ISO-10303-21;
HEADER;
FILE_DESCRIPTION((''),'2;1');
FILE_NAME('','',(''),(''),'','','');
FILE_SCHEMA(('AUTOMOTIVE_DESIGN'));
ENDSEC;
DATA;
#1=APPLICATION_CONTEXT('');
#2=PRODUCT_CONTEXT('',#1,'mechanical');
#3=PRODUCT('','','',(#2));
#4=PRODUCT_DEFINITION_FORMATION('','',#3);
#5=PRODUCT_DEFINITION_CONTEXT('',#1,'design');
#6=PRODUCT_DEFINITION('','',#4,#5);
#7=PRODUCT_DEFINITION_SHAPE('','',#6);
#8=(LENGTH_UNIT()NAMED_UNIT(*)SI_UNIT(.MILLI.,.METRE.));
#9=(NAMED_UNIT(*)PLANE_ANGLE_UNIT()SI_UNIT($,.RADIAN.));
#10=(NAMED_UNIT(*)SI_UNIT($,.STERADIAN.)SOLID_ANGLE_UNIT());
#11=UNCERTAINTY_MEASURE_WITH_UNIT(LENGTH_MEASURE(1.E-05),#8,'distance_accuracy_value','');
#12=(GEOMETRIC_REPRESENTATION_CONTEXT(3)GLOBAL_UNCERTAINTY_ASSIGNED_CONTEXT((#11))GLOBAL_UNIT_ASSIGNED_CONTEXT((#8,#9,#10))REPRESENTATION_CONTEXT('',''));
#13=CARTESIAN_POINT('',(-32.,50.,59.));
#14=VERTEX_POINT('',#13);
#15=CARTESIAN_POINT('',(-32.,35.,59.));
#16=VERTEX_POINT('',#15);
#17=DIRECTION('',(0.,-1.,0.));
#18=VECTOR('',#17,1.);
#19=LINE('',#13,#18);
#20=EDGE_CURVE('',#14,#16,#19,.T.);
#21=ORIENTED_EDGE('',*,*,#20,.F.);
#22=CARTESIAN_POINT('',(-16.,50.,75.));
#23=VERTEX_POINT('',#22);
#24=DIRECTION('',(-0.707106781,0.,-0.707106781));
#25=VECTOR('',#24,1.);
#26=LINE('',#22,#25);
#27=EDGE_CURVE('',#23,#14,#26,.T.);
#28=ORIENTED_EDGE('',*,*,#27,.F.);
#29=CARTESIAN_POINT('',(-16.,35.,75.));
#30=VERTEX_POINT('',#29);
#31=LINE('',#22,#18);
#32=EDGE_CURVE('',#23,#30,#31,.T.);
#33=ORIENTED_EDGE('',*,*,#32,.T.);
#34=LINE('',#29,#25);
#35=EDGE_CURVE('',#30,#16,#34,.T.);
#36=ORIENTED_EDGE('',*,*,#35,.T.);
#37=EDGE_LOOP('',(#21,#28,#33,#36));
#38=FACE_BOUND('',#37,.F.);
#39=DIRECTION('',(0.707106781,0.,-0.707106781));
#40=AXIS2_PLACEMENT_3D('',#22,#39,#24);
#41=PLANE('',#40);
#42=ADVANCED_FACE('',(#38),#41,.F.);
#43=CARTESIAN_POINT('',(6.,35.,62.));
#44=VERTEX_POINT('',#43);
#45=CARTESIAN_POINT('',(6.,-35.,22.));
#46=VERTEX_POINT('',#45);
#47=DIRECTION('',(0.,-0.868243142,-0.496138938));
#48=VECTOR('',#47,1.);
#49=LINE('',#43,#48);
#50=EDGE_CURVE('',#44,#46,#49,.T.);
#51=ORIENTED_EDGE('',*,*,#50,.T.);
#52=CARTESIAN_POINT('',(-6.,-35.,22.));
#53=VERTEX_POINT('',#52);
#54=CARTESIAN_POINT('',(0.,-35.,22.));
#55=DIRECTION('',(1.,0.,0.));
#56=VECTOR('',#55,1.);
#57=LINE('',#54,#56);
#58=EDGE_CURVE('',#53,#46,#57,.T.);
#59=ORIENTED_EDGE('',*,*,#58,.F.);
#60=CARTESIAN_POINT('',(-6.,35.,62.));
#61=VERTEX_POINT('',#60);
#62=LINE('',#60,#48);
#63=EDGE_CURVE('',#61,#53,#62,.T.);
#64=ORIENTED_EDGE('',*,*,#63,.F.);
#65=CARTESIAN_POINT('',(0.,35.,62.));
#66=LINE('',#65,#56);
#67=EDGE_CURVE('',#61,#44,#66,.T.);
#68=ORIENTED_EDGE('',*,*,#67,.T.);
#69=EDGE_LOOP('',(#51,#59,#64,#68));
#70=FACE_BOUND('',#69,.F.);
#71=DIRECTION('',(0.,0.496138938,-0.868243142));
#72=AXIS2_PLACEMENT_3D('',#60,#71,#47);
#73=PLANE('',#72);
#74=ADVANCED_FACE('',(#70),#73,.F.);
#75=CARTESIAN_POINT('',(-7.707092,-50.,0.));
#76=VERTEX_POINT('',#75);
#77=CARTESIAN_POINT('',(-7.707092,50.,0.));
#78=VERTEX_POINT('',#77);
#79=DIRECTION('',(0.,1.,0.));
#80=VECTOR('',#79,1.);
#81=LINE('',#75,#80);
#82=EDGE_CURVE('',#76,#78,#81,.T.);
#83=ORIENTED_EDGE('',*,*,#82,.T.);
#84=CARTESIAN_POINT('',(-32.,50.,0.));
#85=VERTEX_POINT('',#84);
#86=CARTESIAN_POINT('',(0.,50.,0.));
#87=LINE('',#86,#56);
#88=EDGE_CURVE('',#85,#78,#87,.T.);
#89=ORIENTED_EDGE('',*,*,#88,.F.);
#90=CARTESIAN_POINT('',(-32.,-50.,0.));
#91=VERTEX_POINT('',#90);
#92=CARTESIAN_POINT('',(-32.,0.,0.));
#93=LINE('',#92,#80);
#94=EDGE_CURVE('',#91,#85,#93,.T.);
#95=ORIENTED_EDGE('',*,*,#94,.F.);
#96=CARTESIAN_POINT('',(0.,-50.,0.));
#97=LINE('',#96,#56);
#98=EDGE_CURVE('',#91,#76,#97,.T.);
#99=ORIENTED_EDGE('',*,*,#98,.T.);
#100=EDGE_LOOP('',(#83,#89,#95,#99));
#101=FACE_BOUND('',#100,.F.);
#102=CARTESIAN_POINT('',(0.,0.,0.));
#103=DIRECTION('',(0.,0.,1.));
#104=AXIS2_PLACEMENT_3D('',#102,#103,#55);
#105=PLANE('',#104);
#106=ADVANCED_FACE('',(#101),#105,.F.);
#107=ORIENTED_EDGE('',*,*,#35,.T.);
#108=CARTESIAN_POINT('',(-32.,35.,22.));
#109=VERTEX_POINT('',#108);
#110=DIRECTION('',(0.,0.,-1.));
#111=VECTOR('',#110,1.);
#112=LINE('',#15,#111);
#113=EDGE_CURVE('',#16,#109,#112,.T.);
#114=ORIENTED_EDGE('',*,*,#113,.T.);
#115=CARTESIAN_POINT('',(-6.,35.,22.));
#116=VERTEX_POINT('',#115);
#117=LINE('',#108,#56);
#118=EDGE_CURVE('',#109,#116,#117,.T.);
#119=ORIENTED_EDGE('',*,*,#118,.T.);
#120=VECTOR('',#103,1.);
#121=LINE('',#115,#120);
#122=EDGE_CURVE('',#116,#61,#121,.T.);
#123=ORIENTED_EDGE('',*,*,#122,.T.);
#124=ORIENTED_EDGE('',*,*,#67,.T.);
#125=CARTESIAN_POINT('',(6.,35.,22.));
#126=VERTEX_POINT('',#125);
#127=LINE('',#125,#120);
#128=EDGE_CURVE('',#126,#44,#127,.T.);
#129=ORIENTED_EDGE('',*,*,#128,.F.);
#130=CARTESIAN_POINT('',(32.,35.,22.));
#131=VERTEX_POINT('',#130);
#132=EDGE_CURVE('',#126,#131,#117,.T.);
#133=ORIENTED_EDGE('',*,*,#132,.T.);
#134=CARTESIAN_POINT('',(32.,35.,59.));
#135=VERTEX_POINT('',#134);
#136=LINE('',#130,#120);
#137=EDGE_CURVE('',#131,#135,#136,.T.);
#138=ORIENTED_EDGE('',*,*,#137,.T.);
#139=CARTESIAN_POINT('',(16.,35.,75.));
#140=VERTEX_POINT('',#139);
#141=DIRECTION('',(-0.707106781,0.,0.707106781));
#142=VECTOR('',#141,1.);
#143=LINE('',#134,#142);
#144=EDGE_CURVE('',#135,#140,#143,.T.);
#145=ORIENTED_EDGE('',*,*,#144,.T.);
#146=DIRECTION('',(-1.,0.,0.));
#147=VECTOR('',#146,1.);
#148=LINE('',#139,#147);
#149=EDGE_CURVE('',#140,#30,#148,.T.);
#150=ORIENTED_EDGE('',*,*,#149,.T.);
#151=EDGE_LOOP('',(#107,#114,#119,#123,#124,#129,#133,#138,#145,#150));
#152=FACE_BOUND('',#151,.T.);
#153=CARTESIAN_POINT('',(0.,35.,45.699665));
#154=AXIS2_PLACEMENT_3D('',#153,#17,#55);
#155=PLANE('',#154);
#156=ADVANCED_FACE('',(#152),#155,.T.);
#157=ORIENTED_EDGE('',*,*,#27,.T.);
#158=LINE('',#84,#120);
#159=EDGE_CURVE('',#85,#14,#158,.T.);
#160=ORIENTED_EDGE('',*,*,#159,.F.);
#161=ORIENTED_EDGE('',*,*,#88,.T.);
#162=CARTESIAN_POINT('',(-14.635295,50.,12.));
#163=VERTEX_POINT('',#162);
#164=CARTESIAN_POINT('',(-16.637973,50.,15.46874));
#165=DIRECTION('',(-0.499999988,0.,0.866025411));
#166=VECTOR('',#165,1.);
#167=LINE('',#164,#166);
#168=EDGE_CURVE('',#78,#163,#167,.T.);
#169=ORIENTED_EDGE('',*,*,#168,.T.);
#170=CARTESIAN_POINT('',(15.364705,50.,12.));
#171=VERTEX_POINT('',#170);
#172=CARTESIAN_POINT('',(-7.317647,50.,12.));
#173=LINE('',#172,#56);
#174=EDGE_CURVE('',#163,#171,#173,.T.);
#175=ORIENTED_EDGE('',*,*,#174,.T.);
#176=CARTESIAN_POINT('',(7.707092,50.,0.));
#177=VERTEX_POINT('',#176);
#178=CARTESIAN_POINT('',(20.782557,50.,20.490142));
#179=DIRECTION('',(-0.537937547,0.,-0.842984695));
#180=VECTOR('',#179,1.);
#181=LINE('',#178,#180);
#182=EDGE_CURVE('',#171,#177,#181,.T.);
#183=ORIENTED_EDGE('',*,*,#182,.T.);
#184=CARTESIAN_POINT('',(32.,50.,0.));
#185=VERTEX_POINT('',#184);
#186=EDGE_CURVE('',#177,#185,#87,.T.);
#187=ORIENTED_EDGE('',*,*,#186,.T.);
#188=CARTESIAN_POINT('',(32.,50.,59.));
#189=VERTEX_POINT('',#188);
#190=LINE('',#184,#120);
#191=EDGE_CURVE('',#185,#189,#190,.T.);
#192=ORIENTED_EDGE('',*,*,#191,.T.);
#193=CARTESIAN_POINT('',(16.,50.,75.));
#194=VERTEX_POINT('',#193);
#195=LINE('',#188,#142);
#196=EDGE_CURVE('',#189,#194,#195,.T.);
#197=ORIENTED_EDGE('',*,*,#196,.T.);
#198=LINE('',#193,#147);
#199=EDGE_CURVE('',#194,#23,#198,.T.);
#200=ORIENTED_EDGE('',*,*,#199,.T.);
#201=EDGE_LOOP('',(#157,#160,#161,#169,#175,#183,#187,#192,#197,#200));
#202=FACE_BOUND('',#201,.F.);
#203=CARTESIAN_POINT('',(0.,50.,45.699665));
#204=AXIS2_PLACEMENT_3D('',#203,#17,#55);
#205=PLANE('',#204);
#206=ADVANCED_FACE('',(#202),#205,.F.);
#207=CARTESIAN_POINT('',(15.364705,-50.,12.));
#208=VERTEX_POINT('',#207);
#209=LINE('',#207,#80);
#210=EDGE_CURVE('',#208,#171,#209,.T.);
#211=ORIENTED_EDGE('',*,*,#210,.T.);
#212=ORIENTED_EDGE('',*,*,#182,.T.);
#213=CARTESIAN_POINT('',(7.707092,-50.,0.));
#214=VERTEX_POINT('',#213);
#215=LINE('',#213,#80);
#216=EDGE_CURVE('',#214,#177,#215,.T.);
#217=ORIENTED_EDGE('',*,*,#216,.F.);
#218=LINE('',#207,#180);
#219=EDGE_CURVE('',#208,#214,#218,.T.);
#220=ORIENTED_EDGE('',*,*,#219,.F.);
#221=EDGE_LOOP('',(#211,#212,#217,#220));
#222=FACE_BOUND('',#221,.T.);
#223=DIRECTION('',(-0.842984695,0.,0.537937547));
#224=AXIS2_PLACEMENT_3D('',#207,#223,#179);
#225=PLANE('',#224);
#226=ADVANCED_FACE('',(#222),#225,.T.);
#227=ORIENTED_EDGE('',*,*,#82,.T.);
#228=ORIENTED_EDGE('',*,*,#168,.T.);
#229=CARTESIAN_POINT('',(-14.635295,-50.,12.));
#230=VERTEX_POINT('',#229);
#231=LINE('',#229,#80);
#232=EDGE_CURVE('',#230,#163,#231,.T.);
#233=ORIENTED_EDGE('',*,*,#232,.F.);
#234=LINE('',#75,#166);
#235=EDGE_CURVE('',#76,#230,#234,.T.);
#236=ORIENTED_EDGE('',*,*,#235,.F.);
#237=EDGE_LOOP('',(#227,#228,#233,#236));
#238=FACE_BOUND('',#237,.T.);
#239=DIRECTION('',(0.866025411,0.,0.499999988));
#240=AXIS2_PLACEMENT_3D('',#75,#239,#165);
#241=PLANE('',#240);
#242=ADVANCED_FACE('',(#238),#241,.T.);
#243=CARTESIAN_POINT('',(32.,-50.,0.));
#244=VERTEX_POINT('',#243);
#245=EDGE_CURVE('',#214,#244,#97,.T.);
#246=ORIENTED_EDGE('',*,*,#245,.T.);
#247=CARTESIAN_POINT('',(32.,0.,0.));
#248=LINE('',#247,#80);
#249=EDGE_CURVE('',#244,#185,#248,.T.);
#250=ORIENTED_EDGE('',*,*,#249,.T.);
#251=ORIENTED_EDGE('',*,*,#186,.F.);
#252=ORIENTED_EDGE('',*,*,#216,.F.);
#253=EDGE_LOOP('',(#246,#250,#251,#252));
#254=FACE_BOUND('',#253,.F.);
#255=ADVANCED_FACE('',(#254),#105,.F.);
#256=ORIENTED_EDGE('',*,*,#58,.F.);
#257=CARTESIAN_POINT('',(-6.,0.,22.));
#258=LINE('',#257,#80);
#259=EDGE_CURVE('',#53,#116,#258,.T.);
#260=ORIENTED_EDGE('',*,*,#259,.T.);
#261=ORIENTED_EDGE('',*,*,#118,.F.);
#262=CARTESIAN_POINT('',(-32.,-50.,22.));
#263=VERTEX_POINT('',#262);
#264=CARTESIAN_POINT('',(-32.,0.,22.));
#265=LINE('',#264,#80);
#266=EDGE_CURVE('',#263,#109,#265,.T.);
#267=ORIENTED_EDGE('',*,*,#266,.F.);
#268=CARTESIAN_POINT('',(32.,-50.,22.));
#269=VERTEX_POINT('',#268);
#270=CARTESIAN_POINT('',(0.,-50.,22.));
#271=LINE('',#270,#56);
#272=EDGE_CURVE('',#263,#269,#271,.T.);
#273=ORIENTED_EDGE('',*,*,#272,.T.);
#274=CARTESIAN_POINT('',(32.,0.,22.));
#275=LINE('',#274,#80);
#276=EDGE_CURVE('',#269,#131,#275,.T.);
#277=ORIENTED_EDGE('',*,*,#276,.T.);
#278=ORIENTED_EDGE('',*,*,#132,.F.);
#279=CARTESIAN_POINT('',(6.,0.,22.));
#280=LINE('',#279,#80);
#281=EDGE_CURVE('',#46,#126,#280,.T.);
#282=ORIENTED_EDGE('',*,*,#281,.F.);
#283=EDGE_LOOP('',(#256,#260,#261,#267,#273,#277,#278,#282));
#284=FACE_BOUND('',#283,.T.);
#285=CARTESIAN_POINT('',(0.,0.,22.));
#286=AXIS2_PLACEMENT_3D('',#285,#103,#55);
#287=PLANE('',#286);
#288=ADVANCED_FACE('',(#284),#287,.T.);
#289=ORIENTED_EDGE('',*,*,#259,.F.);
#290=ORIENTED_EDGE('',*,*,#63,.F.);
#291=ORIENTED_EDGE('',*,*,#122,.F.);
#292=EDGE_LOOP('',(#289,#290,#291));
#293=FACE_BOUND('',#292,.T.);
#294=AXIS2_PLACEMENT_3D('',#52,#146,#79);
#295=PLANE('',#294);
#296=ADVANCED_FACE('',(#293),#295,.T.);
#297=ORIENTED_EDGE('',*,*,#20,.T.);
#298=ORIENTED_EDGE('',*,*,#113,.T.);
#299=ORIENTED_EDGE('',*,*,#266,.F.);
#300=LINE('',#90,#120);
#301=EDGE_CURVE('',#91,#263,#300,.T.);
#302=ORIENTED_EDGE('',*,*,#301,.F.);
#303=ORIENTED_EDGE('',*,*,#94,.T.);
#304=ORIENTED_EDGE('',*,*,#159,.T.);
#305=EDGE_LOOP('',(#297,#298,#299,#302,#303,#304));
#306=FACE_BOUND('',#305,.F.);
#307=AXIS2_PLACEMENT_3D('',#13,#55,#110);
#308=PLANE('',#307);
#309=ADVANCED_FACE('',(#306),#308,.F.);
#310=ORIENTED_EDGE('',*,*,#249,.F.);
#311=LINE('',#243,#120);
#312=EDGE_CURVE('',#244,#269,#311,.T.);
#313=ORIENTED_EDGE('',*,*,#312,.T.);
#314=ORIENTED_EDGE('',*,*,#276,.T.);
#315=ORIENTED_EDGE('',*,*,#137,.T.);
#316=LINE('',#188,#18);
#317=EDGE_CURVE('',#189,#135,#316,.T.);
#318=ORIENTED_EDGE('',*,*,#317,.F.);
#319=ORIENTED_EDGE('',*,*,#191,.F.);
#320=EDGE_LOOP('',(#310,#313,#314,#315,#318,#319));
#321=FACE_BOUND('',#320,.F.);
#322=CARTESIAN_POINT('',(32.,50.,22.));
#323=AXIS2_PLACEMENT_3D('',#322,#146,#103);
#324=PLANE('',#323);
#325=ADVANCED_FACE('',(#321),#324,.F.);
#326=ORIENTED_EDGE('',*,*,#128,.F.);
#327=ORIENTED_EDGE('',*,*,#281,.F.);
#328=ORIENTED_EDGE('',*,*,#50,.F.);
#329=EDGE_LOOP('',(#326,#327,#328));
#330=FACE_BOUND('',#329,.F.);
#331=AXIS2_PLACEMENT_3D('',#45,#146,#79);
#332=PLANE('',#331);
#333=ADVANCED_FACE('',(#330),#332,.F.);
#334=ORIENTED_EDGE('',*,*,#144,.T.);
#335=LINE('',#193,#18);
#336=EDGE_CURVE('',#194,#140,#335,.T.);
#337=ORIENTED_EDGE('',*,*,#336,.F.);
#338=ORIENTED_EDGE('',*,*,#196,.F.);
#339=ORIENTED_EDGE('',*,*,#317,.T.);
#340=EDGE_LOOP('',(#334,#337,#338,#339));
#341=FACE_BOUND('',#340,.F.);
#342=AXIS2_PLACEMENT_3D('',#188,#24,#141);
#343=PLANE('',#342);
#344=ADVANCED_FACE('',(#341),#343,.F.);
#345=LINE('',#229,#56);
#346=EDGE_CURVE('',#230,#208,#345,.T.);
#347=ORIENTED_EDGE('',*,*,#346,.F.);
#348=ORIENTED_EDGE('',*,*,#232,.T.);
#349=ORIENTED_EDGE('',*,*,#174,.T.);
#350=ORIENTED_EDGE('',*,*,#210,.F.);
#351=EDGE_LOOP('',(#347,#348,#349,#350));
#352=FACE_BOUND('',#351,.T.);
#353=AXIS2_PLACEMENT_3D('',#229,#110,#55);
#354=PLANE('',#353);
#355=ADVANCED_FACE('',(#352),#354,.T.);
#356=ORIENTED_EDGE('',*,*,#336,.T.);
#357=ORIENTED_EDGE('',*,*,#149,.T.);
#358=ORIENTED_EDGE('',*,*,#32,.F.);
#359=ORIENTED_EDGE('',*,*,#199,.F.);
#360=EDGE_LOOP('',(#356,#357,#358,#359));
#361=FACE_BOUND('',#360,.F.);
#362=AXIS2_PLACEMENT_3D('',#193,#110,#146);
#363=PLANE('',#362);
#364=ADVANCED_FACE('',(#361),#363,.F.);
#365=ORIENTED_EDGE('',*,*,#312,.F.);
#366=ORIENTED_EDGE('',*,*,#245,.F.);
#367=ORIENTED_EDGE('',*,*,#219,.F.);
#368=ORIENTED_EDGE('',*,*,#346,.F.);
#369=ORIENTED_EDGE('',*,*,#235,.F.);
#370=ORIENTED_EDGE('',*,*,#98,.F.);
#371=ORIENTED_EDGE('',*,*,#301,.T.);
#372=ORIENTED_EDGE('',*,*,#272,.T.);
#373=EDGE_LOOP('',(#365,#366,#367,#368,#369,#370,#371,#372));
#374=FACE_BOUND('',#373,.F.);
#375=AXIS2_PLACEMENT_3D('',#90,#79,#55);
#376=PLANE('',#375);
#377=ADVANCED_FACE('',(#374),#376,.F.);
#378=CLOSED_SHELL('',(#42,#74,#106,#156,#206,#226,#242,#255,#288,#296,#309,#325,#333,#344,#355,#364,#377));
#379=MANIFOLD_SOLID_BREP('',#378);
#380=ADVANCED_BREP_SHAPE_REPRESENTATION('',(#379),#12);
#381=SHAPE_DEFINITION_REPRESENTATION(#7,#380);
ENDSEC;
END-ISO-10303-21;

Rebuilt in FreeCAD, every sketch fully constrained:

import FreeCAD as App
import Part
import Sketcher
Q = App.Units.Quantity


def add_polygon(sketch, points):
    """Adds a closed chain of lines whose ends are joined by coincident constraints."""
    first, n = sketch.GeometryCount, len(points)
    for a, b in zip(points, points[1:] + points[:1]):
        sketch.addGeometry(Part.LineSegment(App.Vector(*a, 0), App.Vector(*b, 0)), False)
    for i in range(n):
        sketch.addConstraint(Sketcher.Constraint("Coincident", first + i, 2, first + (i + 1) % n, 1))

doc = App.newDocument("Part")
params = doc.addObject("Spreadsheet::Sheet", "Params")
for row, (alias, value) in enumerate([
    ("sketch1_width", "64 mm"),
    ("sketch1_height", "100 mm"),
    ("pad1_length", "22 mm"),
    ("sketch2_width", "64 mm"),
    ("sketch2_width2", "32 mm"),
    ("sketch2_height", "37 mm"),
    ("pad2_length", "15 mm"),
    ("sketch3_width", "30 mm"),
    ("sketch4_width", "12 mm"),
    ("sketch4_height", "70 mm"),
    ("pad3_length", "40 mm"),
    ("sketch5_width", "70 mm"),
    ("sketch5_height", "40 mm"),
    ("pocket2_length", "12 mm"),
], start=1):
    params.set(f"A{row}", alias)
    params.set(f"B{row}", "=" + value)
    params.setAlias(f"B{row}", alias)

body = doc.addObject("PartDesign::Body", "Body")

sketch1 = body.newObject("Sketcher::SketchObject", "Sketch")
sketch1.AttachmentSupport = (doc.getObject("XY_Plane"), [""])
sketch1.MapMode = "FlatFace"
add_polygon(sketch1, [(-32, 50), (-32, -50), (32, -50), (32, 50)])
sketch1.addConstraint([
    Sketcher.Constraint("Vertical", 0),
    Sketcher.Constraint("Horizontal", 1),
    Sketcher.Constraint("Vertical", 2),
    Sketcher.Constraint("Horizontal", 3),
    Sketcher.Constraint("Symmetric", 0, 2, 2, 2, -1, 1),
    Sketcher.Constraint("DistanceX", 1, 1, 1, 2, Q("64 mm")),
    Sketcher.Constraint("DistanceY", 0, 2, 0, 1, Q("100 mm")),
])
sketch1.setExpression("Constraints[9]", "Params.sketch1_width")
sketch1.setExpression("Constraints[10]", "Params.sketch1_height")
pad1 = body.newObject("PartDesign::Pad", "Pad")
pad1.Profile = sketch1
pad1.setExpression("Length", "Params.pad1_length")

sketch2 = body.newObject("Sketcher::SketchObject", "Sketch001")
sketch2.AttachmentSupport = (doc.getObject("XZ_Plane"), [""])
sketch2.MapMode = "FlatFace"
sketch2.AttachmentOffset = App.Placement(App.Vector(0, 0, -50), App.Rotation())
add_polygon(sketch2, [(32, 59), (32, 22), (-32, 22), (-32, 59), (-16, 75), (16, 75)])
sketch2.addConstraint([
    Sketcher.Constraint("Vertical", 0),
    Sketcher.Constraint("Horizontal", 1),
    Sketcher.Constraint("Vertical", 2),
    Sketcher.Constraint("Horizontal", 4),
    Sketcher.Constraint("Symmetric", 2, 2, 5, 2, -2),
    Sketcher.Constraint("Perpendicular", 3, 5),
    Sketcher.Constraint("Equal", 3, 5),
    Sketcher.Constraint("DistanceX", 1, 2, 1, 1, Q("64 mm")),
    Sketcher.Constraint("DistanceX", 4, 1, 4, 2, Q("32 mm")),
    Sketcher.Constraint("DistanceY", 0, 2, 0, 1, Q("37 mm")),
    Sketcher.Constraint("DistanceY", -1, 1, 0, 2, Q("22 mm")),
])
sketch2.setExpression("Constraints[13]", "Params.sketch2_width")
sketch2.setExpression("Constraints[14]", "Params.sketch2_width2")
sketch2.setExpression("Constraints[15]", "Params.sketch2_height")
pad2 = body.newObject("PartDesign::Pad", "Pad001")
pad2.Profile = sketch2
pad2.setExpression("Length", "Params.pad2_length")

sketch3 = body.newObject("Sketcher::SketchObject", "Sketch002")
sketch3.AttachmentSupport = (doc.getObject("XZ_Plane"), [""])
sketch3.MapMode = "FlatFace"
sketch3.AttachmentOffset = App.Placement(App.Vector(0, 0, 50), App.Rotation())
add_polygon(sketch3, [(-15, 12), (-8, 0), (8, 0), (15, 12)])
sketch3.addConstraint([
    Sketcher.Constraint("Horizontal", 1),
    Sketcher.Constraint("Horizontal", 3),
    Sketcher.Constraint("Symmetric", 0, 2, 1, 2, -1, 1),
    Sketcher.Constraint("DistanceX", 3, 2, 3, 1, Q("30 mm")),
    Sketcher.Constraint("Angle", 0, Q("-60.000001 deg")),
    Sketcher.Constraint("DistanceY", -1, 1, 2, 2, Q("12 mm")),
    Sketcher.Constraint("DistanceX", 1, 1, 1, 2, Q("15.414184 mm")),
])
sketch3.setExpression("Constraints[7]", "Params.sketch3_width")
pocket1 = body.newObject("PartDesign::Pocket", "Pocket")
pocket1.Profile = sketch3
pocket1.Type = "ThroughAll"

sketch4 = body.newObject("Sketcher::SketchObject", "Sketch003")
sketch4.AttachmentSupport = (doc.getObject("XY_Plane"), [""])
sketch4.MapMode = "FlatFace"
sketch4.AttachmentOffset = App.Placement(App.Vector(0, 0, 22), App.Rotation())
add_polygon(sketch4, [(-6, 35), (-6, -35), (6, -35), (6, 35)])
sketch4.addConstraint([
    Sketcher.Constraint("Vertical", 0),
    Sketcher.Constraint("Horizontal", 1),
    Sketcher.Constraint("Vertical", 2),
    Sketcher.Constraint("Horizontal", 3),
    Sketcher.Constraint("Symmetric", 0, 2, 2, 2, -1, 1),
    Sketcher.Constraint("DistanceX", 1, 1, 1, 2, Q("12 mm")),
    Sketcher.Constraint("DistanceY", 0, 2, 0, 1, Q("70 mm")),
])
sketch4.setExpression("Constraints[9]", "Params.sketch4_width")
sketch4.setExpression("Constraints[10]", "Params.sketch4_height")
pad3 = body.newObject("PartDesign::Pad", "Pad002")
pad3.Profile = sketch4
pad3.setExpression("Length", "Params.pad3_length")

sketch5 = body.newObject("Sketcher::SketchObject", "Sketch004")
sketch5.AttachmentSupport = (doc.getObject("YZ_Plane"), [""])
sketch5.MapMode = "FlatFace"
sketch5.AttachmentOffset = App.Placement(App.Vector(0, 0, -6), App.Rotation())
add_polygon(sketch5, [(35, 62), (-35, 22), (-35, 62)])
sketch5.addConstraint([
    Sketcher.Constraint("Vertical", 1),
    Sketcher.Constraint("Horizontal", 2),
    Sketcher.Constraint("DistanceX", 2, 1, 2, 2, Q("70 mm")),
    Sketcher.Constraint("DistanceY", 1, 1, 1, 2, Q("40 mm")),
    Sketcher.Constraint("DistanceX", 0, 2, -1, 1, Q("35 mm")),
    Sketcher.Constraint("DistanceY", -1, 1, 0, 2, Q("22 mm")),
])
sketch5.setExpression("Constraints[5]", "Params.sketch5_width")
sketch5.setExpression("Constraints[6]", "Params.sketch5_height")
pocket2 = body.newObject("PartDesign::Pocket", "Pocket001")
pocket2.Profile = sketch5
pocket2.setExpression("Length", "Params.pocket2_length")
pocket2.Reversed = True

doc.recompute()
